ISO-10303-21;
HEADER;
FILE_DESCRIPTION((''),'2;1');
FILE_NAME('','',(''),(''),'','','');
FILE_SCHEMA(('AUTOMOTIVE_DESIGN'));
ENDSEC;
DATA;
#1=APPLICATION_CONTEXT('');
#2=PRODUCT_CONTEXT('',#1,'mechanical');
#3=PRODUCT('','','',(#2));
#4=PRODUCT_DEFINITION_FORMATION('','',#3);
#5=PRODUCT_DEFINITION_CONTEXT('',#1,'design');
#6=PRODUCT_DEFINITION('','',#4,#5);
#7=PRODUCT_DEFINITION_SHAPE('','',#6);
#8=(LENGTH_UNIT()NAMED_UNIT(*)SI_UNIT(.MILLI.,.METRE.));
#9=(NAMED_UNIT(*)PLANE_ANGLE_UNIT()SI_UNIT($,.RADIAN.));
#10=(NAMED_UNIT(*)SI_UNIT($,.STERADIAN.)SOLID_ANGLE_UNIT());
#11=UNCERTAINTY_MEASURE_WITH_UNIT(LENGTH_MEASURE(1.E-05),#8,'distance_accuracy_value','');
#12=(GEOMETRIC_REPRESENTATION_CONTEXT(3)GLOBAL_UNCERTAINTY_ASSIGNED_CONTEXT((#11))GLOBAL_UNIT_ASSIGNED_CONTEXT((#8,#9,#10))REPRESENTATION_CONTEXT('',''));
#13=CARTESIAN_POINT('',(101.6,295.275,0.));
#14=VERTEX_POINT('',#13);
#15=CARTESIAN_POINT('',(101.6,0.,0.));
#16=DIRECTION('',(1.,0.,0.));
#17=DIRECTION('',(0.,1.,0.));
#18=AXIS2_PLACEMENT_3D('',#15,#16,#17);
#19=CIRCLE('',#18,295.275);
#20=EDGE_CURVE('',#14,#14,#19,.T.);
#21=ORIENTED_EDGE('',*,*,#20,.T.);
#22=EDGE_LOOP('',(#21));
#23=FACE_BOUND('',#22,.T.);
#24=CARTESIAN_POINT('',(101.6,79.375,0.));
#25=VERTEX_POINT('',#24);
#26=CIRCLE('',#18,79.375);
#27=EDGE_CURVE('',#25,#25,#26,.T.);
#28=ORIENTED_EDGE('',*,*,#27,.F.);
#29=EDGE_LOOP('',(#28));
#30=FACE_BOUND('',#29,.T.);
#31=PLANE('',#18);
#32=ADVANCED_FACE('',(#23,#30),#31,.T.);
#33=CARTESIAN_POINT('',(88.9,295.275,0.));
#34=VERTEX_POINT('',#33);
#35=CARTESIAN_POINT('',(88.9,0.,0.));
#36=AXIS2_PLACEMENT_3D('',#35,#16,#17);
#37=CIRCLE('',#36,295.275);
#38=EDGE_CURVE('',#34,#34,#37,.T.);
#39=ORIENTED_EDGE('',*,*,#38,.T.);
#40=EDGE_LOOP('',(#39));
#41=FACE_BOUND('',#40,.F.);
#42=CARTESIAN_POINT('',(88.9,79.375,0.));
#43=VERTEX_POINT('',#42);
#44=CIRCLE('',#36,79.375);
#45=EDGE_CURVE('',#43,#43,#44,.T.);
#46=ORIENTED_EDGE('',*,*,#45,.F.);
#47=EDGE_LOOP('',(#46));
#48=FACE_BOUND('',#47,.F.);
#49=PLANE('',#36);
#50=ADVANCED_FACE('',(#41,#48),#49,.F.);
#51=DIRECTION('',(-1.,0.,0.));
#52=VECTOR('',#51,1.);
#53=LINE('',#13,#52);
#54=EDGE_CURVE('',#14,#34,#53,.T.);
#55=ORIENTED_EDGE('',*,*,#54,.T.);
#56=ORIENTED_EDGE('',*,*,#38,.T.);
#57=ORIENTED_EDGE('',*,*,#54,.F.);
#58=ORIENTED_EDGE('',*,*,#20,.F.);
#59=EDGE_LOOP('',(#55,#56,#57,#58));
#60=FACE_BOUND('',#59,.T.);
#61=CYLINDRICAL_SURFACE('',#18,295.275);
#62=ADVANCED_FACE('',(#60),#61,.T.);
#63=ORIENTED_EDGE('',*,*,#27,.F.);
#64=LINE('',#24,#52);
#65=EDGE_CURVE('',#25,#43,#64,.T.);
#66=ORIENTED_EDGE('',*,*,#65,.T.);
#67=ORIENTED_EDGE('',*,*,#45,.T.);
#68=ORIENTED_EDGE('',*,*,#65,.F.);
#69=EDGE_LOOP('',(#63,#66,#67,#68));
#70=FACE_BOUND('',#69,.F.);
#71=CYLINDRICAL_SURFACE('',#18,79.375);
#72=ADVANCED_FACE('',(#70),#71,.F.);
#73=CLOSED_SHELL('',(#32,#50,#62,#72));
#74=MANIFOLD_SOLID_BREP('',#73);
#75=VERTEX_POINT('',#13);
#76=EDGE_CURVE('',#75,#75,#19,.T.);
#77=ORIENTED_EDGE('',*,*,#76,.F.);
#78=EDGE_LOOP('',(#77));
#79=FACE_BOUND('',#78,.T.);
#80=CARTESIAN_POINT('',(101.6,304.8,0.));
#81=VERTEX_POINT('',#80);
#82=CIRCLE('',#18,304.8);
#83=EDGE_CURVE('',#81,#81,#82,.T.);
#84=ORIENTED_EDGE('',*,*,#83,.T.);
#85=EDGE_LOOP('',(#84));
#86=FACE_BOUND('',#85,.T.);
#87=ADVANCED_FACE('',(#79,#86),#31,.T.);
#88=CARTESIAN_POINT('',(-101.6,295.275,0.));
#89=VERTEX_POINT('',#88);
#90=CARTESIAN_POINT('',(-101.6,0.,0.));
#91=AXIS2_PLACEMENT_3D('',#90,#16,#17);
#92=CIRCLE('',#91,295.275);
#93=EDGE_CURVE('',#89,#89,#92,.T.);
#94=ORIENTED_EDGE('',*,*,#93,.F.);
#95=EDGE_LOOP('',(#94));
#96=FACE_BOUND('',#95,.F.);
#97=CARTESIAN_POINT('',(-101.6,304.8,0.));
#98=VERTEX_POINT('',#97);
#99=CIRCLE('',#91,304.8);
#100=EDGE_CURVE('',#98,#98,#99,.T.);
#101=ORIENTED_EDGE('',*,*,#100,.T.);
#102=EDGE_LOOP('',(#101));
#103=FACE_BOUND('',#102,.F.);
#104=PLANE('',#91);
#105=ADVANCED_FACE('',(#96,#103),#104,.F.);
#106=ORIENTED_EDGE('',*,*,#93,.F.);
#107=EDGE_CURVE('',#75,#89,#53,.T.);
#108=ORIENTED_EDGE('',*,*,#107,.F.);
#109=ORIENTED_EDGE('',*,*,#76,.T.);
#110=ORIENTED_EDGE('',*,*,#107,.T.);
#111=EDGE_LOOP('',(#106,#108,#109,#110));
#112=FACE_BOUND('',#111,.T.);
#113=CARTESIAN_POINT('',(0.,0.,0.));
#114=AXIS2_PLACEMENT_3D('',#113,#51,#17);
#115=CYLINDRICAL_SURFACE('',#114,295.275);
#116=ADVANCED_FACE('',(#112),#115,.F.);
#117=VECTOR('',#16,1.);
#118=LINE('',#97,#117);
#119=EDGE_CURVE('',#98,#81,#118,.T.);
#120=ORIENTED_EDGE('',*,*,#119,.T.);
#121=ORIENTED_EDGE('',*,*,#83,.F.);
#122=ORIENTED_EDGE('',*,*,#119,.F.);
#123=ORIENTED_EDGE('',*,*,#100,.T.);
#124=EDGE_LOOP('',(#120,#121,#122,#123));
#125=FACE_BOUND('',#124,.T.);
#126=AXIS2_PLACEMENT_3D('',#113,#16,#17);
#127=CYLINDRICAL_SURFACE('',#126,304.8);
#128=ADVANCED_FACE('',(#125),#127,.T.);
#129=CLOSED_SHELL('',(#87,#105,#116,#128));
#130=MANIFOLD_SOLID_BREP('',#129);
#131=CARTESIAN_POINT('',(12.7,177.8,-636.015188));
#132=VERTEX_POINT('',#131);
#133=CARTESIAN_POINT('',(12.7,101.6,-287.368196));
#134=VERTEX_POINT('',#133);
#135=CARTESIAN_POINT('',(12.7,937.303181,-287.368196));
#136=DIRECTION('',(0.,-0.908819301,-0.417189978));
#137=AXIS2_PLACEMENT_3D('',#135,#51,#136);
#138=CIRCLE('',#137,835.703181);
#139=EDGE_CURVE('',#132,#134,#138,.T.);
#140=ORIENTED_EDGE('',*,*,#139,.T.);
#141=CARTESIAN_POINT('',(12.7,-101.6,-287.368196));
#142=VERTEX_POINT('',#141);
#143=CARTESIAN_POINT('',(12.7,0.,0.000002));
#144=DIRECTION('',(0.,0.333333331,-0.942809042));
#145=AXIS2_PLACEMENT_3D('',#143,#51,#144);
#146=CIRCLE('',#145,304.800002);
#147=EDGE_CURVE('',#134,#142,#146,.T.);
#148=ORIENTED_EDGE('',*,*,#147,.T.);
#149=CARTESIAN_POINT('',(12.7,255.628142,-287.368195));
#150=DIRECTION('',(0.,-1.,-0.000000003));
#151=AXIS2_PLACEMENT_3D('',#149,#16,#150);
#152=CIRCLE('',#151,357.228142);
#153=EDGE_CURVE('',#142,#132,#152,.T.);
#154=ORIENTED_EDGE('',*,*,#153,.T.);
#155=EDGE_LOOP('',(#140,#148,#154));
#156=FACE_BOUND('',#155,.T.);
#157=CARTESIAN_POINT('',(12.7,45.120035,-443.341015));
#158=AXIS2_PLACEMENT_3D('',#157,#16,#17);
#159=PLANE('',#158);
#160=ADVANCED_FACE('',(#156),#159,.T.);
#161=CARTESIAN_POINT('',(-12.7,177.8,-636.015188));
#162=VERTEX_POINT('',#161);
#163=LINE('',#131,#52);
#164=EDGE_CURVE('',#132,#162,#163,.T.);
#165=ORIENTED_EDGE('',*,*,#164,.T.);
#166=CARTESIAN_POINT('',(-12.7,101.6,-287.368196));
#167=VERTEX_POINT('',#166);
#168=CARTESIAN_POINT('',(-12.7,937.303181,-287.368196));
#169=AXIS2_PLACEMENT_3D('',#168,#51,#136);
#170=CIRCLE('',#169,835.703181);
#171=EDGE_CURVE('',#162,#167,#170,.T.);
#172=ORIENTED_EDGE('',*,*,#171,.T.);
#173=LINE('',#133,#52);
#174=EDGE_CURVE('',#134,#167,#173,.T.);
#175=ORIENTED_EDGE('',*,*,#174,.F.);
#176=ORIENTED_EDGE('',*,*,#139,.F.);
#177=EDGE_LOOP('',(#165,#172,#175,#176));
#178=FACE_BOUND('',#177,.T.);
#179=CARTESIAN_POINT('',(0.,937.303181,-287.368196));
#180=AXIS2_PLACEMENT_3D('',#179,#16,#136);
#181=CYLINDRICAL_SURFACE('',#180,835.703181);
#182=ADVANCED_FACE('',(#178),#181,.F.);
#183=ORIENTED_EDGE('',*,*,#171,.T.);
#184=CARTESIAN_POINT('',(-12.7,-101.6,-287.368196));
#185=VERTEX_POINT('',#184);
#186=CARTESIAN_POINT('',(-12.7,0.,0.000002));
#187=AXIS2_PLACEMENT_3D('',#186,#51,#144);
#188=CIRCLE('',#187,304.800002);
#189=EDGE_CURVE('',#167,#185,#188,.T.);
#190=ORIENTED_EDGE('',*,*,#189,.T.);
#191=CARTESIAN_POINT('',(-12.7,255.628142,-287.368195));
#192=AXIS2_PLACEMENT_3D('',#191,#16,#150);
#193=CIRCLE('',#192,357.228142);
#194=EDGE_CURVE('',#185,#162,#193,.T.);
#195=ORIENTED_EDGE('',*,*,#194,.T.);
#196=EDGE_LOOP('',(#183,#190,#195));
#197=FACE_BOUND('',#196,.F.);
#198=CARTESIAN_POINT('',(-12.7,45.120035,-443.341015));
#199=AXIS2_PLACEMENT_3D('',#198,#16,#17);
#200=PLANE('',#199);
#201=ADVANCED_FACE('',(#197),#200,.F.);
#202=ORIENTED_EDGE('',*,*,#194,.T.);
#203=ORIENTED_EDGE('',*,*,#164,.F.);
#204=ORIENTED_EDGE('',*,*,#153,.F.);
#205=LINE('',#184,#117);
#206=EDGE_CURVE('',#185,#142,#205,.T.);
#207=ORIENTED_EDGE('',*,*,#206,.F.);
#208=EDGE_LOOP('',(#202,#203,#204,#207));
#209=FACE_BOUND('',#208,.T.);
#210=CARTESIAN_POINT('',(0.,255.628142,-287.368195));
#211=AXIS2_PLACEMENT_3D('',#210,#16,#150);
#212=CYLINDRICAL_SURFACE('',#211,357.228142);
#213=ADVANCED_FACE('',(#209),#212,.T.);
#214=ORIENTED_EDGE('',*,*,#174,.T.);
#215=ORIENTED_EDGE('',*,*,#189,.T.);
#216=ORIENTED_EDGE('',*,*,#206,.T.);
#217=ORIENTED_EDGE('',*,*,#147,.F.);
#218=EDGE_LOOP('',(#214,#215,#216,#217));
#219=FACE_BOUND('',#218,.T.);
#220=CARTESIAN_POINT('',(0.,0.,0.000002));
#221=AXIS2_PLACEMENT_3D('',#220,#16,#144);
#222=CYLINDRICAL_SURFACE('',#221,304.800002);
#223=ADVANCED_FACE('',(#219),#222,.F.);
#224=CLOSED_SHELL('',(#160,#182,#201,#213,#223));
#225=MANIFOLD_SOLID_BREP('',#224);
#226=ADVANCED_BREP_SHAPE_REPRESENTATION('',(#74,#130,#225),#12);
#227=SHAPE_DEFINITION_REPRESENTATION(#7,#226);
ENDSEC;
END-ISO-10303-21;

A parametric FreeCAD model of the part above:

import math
import FreeCAD as App
import Part
import Sketcher

V = App.Vector
Q = App.Units.Quantity

doc = App.newDocument("Part")
body = doc.addObject("PartDesign::Body", "Body")

sketch1 = body.newObject("Sketcher::SketchObject", "Sketch")
sketch1.AttachmentSupport = (doc.getObject("YZ_Plane"), [""])
sketch1.MapMode = "FlatFace"
sketch1.addGeometry(Part.ArcOfCircle(Part.Circle(V(0, 0, 0), V(0, 0, 1), 305), math.radians(-109), math.radians(-71)), False)
sketch1.addGeometry(Part.ArcOfCircle(Part.Circle(V(256, -287, 0), V(0, 0, 1), 357), math.radians(-180), math.radians(-103)), False)
sketch1.addGeometry(Part.ArcOfCircle(Part.Circle(V(937, -287, 0), V(0, 0, 1), 836), math.radians(180), math.radians(205)), False)
sketch1.addConstraint(Sketcher.Constraint("Coincident", 0, 1, 1, 1))
sketch1.addConstraint(Sketcher.Constraint("Coincident", 1, 2, 2, 2))
sketch1.addConstraint(Sketcher.Constraint("Coincident", 2, 1, 0, 2))
sketch1.addConstraint(Sketcher.Constraint("Coincident", 0, 3, -1, 1))
sketch1.addConstraint(Sketcher.Constraint("Horizontal", 1, 3, 2, 3))
sketch1.addConstraint(Sketcher.Constraint("Horizontal", 2, 3, 0, 1))
sketch1.addConstraint(Sketcher.Constraint("Radius", 0, Q("12.0000001 in")))
sketch1.addConstraint(Sketcher.Constraint("DistanceX", 0, 1, -1, 1, Q("4 in")))
sketch1.addConstraint(Sketcher.Constraint("DistanceX", -1, 1, 1, 2, Q("7 in")))
sketch1.addConstraint(Sketcher.Constraint("DistanceX", -1, 1, 2, 1, Q("4 in")))
sketch1.addConstraint(Sketcher.Constraint("Radius", 1, Q("14.0641001 in")))
pad1 = body.newObject("PartDesign::Pad", "Pad")
pad1.Profile = sketch1
pad1.Length = Q("1 in")
pad1.Midplane = True
body2 = doc.addObject("PartDesign::Body", "Body001")

sketch2 = body2.newObject("Sketcher::SketchObject", "Sketch001")
sketch2.AttachmentSupport = (doc.getObject("YZ_Plane001"), [""])
sketch2.MapMode = "FlatFace"
sketch2.addGeometry(Part.Circle(V(0, 0, 0), V(0, 0, 1), 305), False)
sketch2.addGeometry(Part.Circle(V(0, 0, 0), V(0, 0, 1), 295), False)
sketch2.addConstraint(Sketcher.Constraint("Coincident", 0, 3, -1, 1))
sketch2.addConstraint(Sketcher.Constraint("Coincident", 1, 3, -1, 1))
sketch2.addConstraint(Sketcher.Constraint("Diameter", 0, Q("24 in")))
sketch2.addConstraint(Sketcher.Constraint("Diameter", 1, Q("23.25 in")))
pad2 = body2.newObject("PartDesign::Pad", "Pad001")
pad2.Profile = sketch2
pad2.Length = Q("8 in")
pad2.Midplane = True
body3 = doc.addObject("PartDesign::Body", "Body002")

sketch3 = body3.newObject("Sketcher::SketchObject", "Sketch002")
sketch3.AttachmentSupport = (doc.getObject("YZ_Plane002"), [""])
sketch3.MapMode = "FlatFace"
sketch3.AttachmentOffset = App.Placement(V(0, 0, 4 * 25.4), App.Rotation())
sketch3.addGeometry(Part.Circle(V(0, 0, 0), V(0, 0, 1), 295), False)
sketch3.addGeometry(Part.Circle(V(0, 0, 0), V(0, 0, 1), 79), False)
sketch3.addConstraint(Sketcher.Constraint("Coincident", 0, 3, -1, 1))
sketch3.addConstraint(Sketcher.Constraint("Coincident", 1, 3, -1, 1))
sketch3.addConstraint(Sketcher.Constraint("Diameter", 0, Q("23.25 in")))
sketch3.addConstraint(Sketcher.Constraint("Diameter", 1, Q("6.25 in")))
pad3 = body3.newObject("PartDesign::Pad", "Pad002")
pad3.Profile = sketch3
pad3.Length = Q("0.5 in")
pad3.Reversed = True

doc.recompute()
